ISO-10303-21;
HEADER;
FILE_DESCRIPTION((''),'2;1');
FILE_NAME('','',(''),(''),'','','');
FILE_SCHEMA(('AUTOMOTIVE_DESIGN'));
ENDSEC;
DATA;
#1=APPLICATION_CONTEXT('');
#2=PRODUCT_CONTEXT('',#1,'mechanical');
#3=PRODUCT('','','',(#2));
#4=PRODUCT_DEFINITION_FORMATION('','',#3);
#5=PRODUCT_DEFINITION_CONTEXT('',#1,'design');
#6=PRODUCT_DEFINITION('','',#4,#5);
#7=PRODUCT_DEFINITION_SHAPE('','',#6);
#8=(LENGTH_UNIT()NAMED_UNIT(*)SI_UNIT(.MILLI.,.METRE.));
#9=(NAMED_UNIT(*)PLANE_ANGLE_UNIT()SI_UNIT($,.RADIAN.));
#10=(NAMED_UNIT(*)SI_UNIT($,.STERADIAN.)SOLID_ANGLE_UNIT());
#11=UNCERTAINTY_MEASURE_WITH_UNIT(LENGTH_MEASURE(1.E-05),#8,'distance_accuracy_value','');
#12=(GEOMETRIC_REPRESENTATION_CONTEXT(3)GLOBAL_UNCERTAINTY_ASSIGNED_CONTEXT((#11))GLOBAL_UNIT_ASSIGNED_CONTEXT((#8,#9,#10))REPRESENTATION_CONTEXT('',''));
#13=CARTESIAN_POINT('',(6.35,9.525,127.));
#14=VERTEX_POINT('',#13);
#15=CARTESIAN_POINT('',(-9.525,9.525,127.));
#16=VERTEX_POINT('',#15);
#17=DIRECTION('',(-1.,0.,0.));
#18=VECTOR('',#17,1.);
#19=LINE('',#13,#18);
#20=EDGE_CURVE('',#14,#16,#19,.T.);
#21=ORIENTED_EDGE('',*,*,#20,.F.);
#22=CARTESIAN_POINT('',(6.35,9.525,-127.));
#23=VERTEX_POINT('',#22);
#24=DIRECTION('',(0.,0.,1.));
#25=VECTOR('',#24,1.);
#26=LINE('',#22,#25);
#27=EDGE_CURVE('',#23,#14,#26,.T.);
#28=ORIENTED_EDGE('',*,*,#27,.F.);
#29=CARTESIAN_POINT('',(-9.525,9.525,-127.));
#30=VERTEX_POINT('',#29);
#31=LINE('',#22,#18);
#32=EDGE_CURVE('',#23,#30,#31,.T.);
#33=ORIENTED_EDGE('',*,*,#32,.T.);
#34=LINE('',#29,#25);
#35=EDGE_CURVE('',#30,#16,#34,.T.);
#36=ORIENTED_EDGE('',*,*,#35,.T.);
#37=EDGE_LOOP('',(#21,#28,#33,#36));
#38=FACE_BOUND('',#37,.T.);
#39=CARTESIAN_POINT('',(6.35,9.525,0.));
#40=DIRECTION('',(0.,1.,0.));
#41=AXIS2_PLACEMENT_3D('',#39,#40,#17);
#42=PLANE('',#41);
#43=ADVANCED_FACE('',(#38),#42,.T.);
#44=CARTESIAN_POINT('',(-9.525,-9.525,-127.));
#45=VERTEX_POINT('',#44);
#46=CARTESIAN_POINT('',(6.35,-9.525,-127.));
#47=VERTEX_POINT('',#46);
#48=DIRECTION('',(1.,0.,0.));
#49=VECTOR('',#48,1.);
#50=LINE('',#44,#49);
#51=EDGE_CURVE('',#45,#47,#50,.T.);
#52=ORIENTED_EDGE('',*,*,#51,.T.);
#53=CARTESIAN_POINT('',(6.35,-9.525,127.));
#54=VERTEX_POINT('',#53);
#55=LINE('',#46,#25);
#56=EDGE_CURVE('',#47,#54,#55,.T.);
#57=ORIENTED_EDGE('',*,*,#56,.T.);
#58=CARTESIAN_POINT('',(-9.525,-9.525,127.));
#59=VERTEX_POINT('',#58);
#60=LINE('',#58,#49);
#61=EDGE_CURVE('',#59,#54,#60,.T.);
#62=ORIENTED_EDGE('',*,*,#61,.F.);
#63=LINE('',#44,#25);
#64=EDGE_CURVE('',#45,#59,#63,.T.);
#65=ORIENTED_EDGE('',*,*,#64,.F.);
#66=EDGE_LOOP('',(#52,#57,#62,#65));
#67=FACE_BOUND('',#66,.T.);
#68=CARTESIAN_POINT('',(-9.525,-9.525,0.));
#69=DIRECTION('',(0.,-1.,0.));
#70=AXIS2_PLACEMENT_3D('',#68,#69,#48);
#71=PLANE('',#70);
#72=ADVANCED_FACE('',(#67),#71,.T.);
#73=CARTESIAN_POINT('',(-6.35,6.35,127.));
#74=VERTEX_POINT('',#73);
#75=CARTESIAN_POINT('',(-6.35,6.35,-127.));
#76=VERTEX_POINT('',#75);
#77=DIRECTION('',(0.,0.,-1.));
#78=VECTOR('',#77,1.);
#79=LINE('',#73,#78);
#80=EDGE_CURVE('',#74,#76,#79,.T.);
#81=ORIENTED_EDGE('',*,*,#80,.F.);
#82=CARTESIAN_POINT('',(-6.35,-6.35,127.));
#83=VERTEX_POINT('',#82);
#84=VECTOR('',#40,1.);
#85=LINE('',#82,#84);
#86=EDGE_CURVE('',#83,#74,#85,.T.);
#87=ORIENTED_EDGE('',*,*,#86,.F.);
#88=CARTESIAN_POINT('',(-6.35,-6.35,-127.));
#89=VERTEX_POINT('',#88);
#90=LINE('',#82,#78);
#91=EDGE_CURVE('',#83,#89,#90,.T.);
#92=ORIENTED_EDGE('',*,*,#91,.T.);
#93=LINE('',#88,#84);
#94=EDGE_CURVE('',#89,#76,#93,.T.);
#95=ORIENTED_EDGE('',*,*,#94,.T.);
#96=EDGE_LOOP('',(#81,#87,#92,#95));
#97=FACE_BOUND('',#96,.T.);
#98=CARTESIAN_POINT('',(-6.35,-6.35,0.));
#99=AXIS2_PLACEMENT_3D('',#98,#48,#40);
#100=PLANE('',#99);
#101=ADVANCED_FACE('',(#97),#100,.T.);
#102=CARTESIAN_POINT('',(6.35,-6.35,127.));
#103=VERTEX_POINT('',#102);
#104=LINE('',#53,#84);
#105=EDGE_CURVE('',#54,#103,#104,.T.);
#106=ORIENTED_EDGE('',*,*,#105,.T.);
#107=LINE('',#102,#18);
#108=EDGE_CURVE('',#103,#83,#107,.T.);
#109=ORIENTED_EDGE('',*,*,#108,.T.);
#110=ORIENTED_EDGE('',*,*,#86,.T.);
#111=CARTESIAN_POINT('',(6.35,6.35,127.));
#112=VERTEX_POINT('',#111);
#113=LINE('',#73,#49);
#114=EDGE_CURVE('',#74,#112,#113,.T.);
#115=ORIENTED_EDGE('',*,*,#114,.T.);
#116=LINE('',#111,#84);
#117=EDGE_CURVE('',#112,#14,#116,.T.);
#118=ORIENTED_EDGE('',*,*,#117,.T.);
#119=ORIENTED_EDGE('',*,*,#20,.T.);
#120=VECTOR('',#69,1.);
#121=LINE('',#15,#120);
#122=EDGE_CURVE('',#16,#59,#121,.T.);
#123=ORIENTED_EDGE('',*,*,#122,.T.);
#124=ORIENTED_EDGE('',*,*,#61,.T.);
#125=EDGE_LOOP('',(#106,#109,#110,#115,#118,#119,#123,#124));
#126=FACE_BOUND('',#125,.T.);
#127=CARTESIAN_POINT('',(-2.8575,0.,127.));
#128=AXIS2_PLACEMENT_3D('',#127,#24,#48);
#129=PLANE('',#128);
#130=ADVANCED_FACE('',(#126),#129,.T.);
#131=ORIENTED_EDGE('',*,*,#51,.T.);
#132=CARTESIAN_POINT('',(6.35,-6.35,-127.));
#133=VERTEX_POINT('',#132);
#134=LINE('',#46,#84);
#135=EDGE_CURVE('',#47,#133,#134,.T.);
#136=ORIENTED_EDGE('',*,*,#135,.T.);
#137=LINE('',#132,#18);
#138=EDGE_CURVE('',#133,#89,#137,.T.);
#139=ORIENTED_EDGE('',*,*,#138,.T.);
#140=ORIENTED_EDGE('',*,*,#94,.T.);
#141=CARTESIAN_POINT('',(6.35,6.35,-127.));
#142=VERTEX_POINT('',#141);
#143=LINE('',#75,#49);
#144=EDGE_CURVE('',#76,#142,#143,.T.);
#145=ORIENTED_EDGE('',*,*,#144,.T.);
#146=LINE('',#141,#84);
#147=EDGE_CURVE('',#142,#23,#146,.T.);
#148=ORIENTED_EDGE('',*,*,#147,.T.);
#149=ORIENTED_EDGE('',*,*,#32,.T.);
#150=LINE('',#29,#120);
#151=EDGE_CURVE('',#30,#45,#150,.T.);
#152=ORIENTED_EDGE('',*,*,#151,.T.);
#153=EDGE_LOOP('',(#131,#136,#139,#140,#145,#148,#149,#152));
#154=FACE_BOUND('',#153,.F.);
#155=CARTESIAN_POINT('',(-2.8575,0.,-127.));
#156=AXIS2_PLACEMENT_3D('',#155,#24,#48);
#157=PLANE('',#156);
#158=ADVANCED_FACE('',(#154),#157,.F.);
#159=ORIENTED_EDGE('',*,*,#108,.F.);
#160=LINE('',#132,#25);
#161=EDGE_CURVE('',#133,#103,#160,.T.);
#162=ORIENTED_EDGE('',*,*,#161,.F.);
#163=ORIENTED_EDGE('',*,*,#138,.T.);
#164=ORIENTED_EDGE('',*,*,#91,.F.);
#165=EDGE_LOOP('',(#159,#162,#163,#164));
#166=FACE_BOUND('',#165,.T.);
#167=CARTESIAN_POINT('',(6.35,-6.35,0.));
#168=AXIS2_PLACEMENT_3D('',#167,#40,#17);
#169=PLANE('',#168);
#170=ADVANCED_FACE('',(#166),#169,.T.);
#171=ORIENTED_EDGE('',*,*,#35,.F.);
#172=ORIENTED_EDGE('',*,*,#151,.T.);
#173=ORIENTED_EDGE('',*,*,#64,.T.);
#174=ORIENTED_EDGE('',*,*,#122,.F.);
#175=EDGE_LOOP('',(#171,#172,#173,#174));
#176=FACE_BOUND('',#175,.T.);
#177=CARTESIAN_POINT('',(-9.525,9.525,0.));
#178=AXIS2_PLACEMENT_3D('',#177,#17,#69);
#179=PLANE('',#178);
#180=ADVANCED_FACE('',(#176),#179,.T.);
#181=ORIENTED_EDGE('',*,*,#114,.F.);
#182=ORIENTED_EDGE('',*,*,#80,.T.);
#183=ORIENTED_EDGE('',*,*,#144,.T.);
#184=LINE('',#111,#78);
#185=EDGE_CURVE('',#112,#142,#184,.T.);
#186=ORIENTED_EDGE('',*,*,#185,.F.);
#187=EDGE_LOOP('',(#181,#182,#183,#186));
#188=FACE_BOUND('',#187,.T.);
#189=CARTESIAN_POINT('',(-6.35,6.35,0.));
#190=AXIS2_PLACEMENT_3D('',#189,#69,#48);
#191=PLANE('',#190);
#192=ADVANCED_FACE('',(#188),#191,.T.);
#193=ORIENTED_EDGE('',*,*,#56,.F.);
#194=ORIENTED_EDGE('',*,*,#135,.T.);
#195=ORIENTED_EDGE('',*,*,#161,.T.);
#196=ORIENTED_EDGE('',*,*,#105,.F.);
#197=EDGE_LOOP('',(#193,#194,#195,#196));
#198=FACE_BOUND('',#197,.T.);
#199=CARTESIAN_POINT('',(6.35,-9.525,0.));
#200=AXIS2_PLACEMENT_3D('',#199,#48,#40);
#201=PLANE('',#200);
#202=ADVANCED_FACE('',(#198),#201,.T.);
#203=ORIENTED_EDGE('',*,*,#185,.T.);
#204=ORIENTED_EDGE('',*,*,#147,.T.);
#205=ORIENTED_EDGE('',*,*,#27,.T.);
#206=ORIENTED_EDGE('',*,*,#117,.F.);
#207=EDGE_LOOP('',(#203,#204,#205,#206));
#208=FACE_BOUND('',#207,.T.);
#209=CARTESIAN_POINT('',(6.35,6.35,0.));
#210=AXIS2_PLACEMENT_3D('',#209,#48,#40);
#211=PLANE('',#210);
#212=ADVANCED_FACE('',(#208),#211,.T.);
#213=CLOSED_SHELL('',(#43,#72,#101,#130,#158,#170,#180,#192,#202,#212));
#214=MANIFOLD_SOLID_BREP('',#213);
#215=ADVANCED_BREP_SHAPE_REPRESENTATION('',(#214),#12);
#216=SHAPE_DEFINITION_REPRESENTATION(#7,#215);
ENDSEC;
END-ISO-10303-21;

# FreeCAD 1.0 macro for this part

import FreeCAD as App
import Part
import Sketcher
Q = App.Units.Quantity


def add_polygon(sketch, points):
    """Adds a closed chain of lines whose ends are joined by coincident constraints."""
    first, n = sketch.GeometryCount, len(points)
    for a, b in zip(points, points[1:] + points[:1]):
        sketch.addGeometry(Part.LineSegment(App.Vector(*a, 0), App.Vector(*b, 0)), False)
    for i in range(n):
        sketch.addConstraint(Sketcher.Constraint("Coincident", first + i, 2, first + (i + 1) % n, 1))

doc = App.newDocument("Part")
body = doc.addObject("PartDesign::Body", "Body")

# Sketch on XY plane
sketch1 = body.newObject("Sketcher::SketchObject", "Sketch")
sketch1.AttachmentSupport = (doc.getObject("XY_Plane"), [""])
sketch1.MapMode = "FlatFace"
add_polygon(sketch1, [(6.35, 6.35), (6.35, 9.525), (-9.525, 9.525), (-9.525, -9.525), (6.35, -9.525), (6.35, -6.35), (-6.35, -6.35), (-6.35, 6.35)])  # lines 0-7
sketch1.addConstraint(Sketcher.Constraint("Vertical", 0))
sketch1.addConstraint(Sketcher.Constraint("Horizontal", 1))
sketch1.addConstraint(Sketcher.Constraint("Vertical", 2))
sketch1.addConstraint(Sketcher.Constraint("Horizontal", 3))
sketch1.addConstraint(Sketcher.Constraint("Vertical", 4))
sketch1.addConstraint(Sketcher.Constraint("Horizontal", 5))
sketch1.addConstraint(Sketcher.Constraint("Vertical", 6))
sketch1.addConstraint(Sketcher.Constraint("Horizontal", 7))
sketch1.addConstraint(Sketcher.Constraint("Symmetric", 4, 2, 6, 2, -1, 1))
sketch1.addConstraint(Sketcher.Constraint("Symmetric", 0, 2, 3, 2, -1))
sketch1.addConstraint(Sketcher.Constraint("Equal", 7, 6))
sketch1.addConstraint(Sketcher.Constraint("DistanceX", 5, 2, 5, 1, Q("0.5 in")))
sketch1.addConstraint(Sketcher.Constraint("DistanceY", 2, 2, 2, 1, Q("0.75 in")))
sketch1.addConstraint(Sketcher.Constraint("DistanceX", 1, 2, 1, 1, Q("0.625 in")))
pad1 = body.newObject("PartDesign::Pad", "Pad")
pad1.Profile = sketch1
pad1.Length = Q("10 in")
pad1.Midplane = True

doc.recompute()
